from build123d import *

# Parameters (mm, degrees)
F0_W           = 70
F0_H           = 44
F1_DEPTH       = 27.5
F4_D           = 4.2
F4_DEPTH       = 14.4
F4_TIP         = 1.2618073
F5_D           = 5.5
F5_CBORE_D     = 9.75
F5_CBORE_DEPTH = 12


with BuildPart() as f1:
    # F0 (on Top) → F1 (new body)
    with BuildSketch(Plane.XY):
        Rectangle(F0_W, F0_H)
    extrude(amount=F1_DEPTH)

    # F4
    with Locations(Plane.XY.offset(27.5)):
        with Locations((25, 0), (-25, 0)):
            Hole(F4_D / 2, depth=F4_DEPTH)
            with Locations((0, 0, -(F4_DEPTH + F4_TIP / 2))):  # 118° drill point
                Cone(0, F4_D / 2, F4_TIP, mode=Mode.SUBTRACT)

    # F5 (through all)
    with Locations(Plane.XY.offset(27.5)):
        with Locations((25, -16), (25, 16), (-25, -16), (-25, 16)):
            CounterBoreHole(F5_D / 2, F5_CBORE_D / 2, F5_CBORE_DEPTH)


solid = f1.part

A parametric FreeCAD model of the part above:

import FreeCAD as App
import Part
import Sketcher

V = App.Vector


def add_polygon(sketch, points):
    """Adds a closed chain of lines whose ends are joined by coincident constraints."""
    first, n = sketch.GeometryCount, len(points)
    for a, b in zip(points, points[1:] + points[:1]):
        sketch.addGeometry(Part.LineSegment(App.Vector(*a, 0), App.Vector(*b, 0)), False)
    for i in range(n):
        sketch.addConstraint(Sketcher.Constraint("Coincident", first + i, 2, first + (i + 1) % n, 1))

doc = App.newDocument("Part")
body = doc.addObject("PartDesign::Body", "Body")

# Sketch on XY plane
sketch1 = body.newObject("Sketcher::SketchObject", "Sketch")
sketch1.AttachmentSupport = (doc.getObject("XY_Plane"), [""])
sketch1.MapMode = "FlatFace"
add_polygon(sketch1, [(-35, 22), (-35, -22), (35, -22), (35, 22)])  # lines 0-3
sketch1.addConstraint([
    Sketcher.Constraint("Vertical", 0),
    Sketcher.Constraint("Horizontal", 1),
    Sketcher.Constraint("Vertical", 2),
    Sketcher.Constraint("Horizontal", 3),
    Sketcher.Constraint("Symmetric", 0, 2, 2, 2, -1, 1),
    Sketcher.Constraint("DistanceX", 1, 1, 1, 2, 70.0),
    Sketcher.Constraint("DistanceY", 0, 2, 0, 1, 44.0),
])
pad1 = body.newObject("PartDesign::Pad", "Pad")
pad1.Profile = sketch1
pad1.Length = 27.5

# Sketch on XY plane
sketch2 = body.newObject("Sketcher::SketchObject", "Sketch001")
sketch2.AttachmentSupport = (doc.getObject("XY_Plane"), [""])
sketch2.MapMode = "FlatFace"
sketch2.AttachmentOffset = App.Placement(V(0, 0, 27.5), App.Rotation())
sketch2.addGeometry([
    Part.Circle(V(25, 0, 0), V(0, 0, 1), 2.1),
    Part.Circle(V(-25, 0, 0), V(0, 0, 1), 2.1),
], False)
sketch2.addConstraint([
    Sketcher.Constraint("Equal", 0, 1),
    Sketcher.Constraint("Symmetric", 0, 3, 1, 3, -1, 1),
    Sketcher.Constraint("PointOnObject", 0, 3, -1),
    Sketcher.Constraint("Diameter", 0, 4.2),
    Sketcher.Constraint("DistanceX", -1, 1, 0, 3, 25.0),
])
doc.recompute()
hole = body.newObject("PartDesign::Hole", "Hole")
hole.Profile = sketch2
hole.ThreadType = "None"
hole.Diameter = 4.2
hole.DepthType = "Dimension"
hole.Depth = 14.4
hole.DrillPoint = "Angled"
hole.DrillPointAngle = 118

# Sketch on XY plane
sketch3 = body.newObject("Sketcher::SketchObject", "Sketch002")
sketch3.AttachmentSupport = (doc.getObject("XY_Plane"), [""])
sketch3.MapMode = "FlatFace"
sketch3.AttachmentOffset = App.Placement(V(0, 0, 27.5), App.Rotation())
sketch3.addGeometry([
    Part.Circle(V(25, -16, 0), V(0, 0, 1), 2.8),
    Part.Circle(V(25, 16, 0), V(0, 0, 1), 2.8),
    Part.Circle(V(-25, -16, 0), V(0, 0, 1), 2.8),
    Part.Circle(V(-25, 16, 0), V(0, 0, 1), 2.8),
], False)
sketch3.addConstraint([
    Sketcher.Constraint("Equal", 0, 1),
    Sketcher.Constraint("Equal", 1, 2),
    Sketcher.Constraint("Equal", 2, 3),
    Sketcher.Constraint("Symmetric", 1, 3, 2, 3, -1, 1),
    Sketcher.Constraint("Symmetric", 0, 3, 3, 3, -1, 1),
    Sketcher.Constraint("Symmetric", 0, 3, 2, 3, -2),
    Sketcher.Constraint("Diameter", 0, 5.5),
    Sketcher.Constraint("DistanceX", -1, 1, 0, 3, 25.0),
    Sketcher.Constraint("DistanceY", 0, 3, -1, 1, 16.0),
])
doc.recompute()
hole2 = body.newObject("PartDesign::Hole", "Hole001")
hole2.Profile = sketch3
hole2.ThreadType = "None"
hole2.Diameter = 5.5
hole2.DepthType = "ThroughAll"
hole2.HoleCutType = "Counterbore"
hole2.HoleCutDiameter = 9.75
hole2.HoleCutDepth = 12

doc.recompute()
